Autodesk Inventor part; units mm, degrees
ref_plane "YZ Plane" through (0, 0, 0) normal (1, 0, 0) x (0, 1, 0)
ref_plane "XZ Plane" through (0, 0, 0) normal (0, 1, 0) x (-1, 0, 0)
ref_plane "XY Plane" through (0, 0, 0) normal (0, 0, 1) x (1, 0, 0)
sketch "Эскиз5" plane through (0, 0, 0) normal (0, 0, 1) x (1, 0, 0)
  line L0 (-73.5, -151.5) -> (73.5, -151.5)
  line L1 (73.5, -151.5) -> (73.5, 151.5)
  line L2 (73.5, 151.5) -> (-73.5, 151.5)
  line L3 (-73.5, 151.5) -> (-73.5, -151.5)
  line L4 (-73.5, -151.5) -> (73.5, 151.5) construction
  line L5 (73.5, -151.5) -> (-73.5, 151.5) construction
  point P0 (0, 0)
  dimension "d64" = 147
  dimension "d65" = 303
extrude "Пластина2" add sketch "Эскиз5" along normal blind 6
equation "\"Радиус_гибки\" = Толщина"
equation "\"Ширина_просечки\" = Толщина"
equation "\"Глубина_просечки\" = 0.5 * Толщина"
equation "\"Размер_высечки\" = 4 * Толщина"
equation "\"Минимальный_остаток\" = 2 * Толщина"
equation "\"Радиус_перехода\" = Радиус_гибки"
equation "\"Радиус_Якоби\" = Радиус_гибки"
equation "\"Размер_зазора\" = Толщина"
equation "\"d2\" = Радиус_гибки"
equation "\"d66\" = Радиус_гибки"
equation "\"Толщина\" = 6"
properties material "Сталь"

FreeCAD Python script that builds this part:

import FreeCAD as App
import Part
import Sketcher

V = App.Vector
Q = App.Units.Quantity

doc = App.newDocument("Part")
params = doc.addObject("Spreadsheet::Sheet", "Params")
for row, (alias, value) in enumerate([
    ("sketch1_width", "147 mm"),
    ("sketch1_height", "303 mm"),
    ("pad1_length", "6 mm"),
], start=1):
    params.set(f"A{row}", alias)
    params.set(f"B{row}", "=" + value)
    params.setAlias(f"B{row}", alias)

body = doc.addObject("PartDesign::Body", "Body")

sketch1 = body.newObject("Sketcher::SketchObject", "Sketch")
sketch1.AttachmentSupport = (doc.getObject("XY_Plane"), [""])
sketch1.MapMode = "FlatFace"
sketch1.addGeometry(Part.LineSegment(V(-74, 152, 0), V(-74, -152, 0)), False)
sketch1.addGeometry(Part.LineSegment(V(-74, -152, 0), V(74, -152, 0)), False)
sketch1.addGeometry(Part.LineSegment(V(74, -152, 0), V(74, 152, 0)), False)
sketch1.addGeometry(Part.LineSegment(V(74, 152, 0), V(-74, 152, 0)), False)
sketch1.addConstraint(Sketcher.Constraint("Coincident", 0, 2, 1, 1))
sketch1.addConstraint(Sketcher.Constraint("Coincident", 1, 2, 2, 1))
sketch1.addConstraint(Sketcher.Constraint("Coincident", 2, 2, 3, 1))
sketch1.addConstraint(Sketcher.Constraint("Coincident", 3, 2, 0, 1))
sketch1.addConstraint(Sketcher.Constraint("Vertical", 0))
sketch1.addConstraint(Sketcher.Constraint("Horizontal", 1))
sketch1.addConstraint(Sketcher.Constraint("Vertical", 2))
sketch1.addConstraint(Sketcher.Constraint("Horizontal", 3))
sketch1.addConstraint(Sketcher.Constraint("Symmetric", 0, 2, 2, 2, -1, 1))
sketch1.addConstraint(Sketcher.Constraint("DistanceX", 1, 1, 1, 2, Q("147 mm")))
sketch1.addConstraint(Sketcher.Constraint("DistanceY", 0, 2, 0, 1, Q("303 mm")))
sketch1.setExpression("Constraints[9]", "Params.sketch1_width")
sketch1.setExpression("Constraints[10]", "Params.sketch1_height")
pad1 = body.newObject("PartDesign::Pad", "Pad")
pad1.Profile = sketch1
pad1.setExpression("Length", "Params.pad1_length")

doc.recompute()
